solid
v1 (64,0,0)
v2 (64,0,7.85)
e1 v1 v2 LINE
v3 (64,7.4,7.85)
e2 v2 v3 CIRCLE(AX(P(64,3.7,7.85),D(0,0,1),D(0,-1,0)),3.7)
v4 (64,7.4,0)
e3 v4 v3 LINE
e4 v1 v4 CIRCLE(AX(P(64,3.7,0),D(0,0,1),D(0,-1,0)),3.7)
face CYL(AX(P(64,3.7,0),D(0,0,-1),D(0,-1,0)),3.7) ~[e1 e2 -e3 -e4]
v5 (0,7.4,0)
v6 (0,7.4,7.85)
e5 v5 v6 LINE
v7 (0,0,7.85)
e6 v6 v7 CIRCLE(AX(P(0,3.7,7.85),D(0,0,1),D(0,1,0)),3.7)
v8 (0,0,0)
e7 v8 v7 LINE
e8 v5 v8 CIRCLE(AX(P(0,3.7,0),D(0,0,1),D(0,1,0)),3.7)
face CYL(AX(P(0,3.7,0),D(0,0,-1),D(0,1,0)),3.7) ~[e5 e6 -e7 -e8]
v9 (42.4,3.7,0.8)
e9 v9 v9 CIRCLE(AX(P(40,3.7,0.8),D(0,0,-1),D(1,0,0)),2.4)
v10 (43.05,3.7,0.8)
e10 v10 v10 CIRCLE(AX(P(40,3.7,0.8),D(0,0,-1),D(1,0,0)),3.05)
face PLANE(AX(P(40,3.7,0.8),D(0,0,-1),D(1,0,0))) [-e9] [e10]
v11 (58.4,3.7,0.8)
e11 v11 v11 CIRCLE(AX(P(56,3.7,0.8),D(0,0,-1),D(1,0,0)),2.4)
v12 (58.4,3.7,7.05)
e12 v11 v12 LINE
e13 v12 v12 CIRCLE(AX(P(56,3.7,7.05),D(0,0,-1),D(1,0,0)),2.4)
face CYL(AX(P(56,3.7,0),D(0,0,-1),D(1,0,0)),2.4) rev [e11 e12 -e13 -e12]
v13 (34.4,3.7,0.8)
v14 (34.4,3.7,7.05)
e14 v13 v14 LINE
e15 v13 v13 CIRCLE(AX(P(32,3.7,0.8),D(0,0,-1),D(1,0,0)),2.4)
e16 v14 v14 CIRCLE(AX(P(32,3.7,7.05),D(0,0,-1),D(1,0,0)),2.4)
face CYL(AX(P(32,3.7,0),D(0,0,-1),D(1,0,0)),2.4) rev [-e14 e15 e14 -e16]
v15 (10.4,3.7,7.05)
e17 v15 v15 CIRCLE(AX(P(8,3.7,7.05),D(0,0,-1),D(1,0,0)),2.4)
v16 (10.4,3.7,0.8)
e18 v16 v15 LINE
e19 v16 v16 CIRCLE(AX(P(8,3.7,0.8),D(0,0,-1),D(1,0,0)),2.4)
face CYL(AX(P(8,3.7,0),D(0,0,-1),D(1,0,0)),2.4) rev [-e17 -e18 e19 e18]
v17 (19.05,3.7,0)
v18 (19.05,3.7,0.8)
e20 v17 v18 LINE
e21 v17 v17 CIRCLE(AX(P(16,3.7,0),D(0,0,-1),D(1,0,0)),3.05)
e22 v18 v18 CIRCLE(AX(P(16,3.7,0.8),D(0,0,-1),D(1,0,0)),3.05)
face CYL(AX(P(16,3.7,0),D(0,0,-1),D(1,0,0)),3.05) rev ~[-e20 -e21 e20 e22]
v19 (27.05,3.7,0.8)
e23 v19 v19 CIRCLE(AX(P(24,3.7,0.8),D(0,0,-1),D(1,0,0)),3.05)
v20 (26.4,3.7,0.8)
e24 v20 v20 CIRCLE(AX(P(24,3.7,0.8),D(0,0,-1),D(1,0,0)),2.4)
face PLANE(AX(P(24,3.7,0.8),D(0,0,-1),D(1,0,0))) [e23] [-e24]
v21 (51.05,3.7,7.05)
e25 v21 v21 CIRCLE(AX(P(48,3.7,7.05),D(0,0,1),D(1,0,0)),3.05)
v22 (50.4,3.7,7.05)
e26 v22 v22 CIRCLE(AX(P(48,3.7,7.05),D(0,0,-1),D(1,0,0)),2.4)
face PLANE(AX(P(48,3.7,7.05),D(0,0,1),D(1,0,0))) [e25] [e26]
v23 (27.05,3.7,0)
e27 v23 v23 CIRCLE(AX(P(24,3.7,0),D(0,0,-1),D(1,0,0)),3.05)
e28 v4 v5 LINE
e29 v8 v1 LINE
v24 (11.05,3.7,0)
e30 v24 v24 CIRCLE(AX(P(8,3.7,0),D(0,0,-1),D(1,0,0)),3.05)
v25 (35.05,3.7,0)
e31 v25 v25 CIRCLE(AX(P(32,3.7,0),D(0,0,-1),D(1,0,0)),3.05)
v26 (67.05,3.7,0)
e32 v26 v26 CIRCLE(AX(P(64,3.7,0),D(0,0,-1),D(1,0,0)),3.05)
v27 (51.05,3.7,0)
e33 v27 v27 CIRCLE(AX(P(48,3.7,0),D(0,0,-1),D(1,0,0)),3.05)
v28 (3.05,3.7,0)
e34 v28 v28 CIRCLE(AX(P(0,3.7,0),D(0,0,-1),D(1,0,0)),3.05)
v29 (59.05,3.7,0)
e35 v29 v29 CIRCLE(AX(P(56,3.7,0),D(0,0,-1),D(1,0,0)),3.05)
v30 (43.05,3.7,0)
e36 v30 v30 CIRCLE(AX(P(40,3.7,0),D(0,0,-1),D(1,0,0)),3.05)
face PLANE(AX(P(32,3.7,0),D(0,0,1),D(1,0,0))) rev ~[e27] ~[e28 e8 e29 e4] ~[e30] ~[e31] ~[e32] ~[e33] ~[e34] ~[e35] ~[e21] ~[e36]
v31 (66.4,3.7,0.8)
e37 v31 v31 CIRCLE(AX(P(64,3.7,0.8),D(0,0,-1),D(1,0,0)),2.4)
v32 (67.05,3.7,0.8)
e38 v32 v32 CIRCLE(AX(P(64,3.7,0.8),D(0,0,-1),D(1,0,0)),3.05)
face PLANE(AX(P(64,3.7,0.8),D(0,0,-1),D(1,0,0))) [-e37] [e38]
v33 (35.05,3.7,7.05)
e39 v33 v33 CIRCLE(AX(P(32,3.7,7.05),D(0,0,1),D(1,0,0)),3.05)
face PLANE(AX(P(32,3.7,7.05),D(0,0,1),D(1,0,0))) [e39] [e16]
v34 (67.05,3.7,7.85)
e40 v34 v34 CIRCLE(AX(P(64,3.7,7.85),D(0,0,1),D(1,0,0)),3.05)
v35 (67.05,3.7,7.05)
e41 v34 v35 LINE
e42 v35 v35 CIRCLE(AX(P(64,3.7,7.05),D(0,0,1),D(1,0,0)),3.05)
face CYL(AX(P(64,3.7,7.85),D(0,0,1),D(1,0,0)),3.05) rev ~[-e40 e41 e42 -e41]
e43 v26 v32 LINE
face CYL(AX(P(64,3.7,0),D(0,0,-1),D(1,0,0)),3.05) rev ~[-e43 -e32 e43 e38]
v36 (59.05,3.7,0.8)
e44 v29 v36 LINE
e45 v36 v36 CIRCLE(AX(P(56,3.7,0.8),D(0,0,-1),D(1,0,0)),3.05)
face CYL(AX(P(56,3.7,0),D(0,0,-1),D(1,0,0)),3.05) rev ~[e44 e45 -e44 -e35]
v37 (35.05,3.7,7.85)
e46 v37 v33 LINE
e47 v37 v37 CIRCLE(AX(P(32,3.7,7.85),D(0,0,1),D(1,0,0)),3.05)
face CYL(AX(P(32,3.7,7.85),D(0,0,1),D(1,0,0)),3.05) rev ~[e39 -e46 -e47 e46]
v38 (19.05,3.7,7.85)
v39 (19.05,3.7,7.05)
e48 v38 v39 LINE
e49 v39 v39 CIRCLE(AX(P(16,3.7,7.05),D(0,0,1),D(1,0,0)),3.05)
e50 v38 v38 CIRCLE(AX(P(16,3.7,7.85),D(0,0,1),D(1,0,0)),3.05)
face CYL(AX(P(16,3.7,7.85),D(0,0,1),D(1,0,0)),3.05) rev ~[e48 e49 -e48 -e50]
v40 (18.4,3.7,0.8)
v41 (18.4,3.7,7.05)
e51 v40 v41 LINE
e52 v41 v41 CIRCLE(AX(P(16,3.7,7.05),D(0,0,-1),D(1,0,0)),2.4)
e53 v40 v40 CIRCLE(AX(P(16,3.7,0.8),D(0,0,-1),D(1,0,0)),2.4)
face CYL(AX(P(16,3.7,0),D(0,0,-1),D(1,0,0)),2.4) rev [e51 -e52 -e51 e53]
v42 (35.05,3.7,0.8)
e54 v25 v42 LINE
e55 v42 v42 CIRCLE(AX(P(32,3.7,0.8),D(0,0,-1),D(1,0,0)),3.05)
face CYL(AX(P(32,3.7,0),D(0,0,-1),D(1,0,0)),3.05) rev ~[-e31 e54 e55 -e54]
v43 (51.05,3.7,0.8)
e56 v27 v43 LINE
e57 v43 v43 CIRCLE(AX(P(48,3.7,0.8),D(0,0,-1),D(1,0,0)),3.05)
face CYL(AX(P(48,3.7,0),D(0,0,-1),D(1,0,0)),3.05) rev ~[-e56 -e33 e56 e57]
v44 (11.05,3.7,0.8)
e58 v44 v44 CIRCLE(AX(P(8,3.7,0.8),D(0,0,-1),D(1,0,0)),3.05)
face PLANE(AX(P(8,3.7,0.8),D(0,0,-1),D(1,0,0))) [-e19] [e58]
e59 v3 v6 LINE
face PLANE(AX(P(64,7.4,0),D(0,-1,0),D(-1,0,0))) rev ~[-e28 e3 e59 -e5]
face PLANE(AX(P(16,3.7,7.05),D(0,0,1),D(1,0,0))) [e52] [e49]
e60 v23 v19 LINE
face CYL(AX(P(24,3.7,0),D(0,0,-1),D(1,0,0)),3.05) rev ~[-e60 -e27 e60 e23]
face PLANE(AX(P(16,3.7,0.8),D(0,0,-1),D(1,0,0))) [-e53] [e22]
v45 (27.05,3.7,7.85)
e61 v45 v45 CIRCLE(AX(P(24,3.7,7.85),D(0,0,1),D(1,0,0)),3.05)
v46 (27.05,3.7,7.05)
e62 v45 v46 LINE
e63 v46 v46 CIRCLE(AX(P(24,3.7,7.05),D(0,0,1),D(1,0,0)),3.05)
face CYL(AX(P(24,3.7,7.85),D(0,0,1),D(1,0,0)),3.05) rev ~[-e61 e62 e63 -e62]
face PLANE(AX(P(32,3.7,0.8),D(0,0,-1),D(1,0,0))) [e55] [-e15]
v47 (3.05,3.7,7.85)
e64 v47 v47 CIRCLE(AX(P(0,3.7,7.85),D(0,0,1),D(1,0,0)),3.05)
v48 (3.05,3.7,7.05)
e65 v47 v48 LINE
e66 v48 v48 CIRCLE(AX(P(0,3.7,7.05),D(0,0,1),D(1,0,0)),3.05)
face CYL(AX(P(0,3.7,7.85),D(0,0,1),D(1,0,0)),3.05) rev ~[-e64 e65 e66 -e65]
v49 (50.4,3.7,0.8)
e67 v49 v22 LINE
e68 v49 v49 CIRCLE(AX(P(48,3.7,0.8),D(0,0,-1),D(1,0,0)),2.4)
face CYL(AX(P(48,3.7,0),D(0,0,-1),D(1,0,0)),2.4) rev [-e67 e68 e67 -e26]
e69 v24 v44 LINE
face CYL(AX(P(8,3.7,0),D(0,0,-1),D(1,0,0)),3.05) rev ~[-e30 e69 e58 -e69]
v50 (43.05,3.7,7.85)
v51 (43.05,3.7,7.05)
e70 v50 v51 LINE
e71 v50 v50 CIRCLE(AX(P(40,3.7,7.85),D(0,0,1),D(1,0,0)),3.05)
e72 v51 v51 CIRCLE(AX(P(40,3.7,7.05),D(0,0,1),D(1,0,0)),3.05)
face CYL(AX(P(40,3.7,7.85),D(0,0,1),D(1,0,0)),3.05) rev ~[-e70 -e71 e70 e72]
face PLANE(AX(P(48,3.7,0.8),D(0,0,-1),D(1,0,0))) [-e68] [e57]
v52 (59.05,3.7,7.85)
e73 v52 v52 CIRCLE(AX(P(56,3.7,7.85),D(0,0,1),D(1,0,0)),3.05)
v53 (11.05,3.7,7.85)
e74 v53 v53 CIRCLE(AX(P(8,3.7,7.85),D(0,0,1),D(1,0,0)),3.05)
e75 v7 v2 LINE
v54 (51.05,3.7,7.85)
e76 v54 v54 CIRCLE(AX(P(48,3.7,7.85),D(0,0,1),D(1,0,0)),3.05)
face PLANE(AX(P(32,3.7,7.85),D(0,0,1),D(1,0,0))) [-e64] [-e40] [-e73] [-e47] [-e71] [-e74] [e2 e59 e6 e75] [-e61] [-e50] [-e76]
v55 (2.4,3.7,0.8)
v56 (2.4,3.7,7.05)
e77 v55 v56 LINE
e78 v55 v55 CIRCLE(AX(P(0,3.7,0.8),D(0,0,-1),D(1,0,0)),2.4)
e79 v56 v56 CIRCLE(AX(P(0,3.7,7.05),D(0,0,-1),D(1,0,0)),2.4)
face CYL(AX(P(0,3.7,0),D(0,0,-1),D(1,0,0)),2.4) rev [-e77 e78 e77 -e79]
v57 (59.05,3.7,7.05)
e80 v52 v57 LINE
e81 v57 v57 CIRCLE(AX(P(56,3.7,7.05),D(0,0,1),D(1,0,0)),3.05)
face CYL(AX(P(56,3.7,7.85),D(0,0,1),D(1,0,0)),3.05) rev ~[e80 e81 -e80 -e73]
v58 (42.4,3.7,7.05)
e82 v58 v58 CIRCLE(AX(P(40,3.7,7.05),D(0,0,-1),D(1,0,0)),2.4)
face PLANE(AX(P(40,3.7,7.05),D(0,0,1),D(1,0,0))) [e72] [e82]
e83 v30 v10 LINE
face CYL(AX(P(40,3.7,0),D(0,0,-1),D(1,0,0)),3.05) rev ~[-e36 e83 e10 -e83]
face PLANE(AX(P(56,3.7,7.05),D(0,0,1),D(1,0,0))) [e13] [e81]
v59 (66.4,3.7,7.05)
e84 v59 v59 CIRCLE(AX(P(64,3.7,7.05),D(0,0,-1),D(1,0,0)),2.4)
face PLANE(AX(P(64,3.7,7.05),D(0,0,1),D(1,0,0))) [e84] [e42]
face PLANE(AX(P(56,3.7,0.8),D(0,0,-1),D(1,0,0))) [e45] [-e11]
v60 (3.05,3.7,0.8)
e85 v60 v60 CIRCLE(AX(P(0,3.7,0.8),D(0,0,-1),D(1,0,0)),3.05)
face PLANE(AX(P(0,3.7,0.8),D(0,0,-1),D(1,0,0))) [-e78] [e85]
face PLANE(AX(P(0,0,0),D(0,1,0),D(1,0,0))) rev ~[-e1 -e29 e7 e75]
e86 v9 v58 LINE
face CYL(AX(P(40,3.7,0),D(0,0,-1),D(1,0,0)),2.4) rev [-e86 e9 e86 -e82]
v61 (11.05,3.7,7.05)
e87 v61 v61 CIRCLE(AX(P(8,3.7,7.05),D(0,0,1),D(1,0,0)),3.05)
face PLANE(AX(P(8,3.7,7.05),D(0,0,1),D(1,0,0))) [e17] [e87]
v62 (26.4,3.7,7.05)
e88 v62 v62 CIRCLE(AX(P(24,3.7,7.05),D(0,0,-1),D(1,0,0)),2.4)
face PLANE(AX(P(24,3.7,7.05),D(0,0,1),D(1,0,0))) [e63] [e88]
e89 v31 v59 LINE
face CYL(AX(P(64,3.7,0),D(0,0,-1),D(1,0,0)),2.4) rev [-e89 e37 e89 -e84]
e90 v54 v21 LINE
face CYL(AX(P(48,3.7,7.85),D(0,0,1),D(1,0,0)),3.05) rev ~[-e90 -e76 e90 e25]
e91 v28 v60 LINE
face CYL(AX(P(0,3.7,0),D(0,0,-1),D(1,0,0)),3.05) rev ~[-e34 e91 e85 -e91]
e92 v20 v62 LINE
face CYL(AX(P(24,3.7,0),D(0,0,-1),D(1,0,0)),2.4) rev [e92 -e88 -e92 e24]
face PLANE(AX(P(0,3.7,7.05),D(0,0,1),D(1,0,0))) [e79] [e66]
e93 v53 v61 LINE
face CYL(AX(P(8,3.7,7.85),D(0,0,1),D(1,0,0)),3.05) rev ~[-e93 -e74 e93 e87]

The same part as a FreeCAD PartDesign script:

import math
import FreeCAD as App
import Part
import Sketcher

doc = App.newDocument("Part")
body = doc.addObject("PartDesign::Body", "Body")

sketch1 = doc.addObject("Sketcher::SketchObject", "Sketch")
body.addObject(sketch1)
sketch1.AttachmentSupport = (doc.XY_Plane, [""])
sketch1.MapMode = "FlatFace"
sketch1.addGeometry([
    Part.ArcOfCircle(Part.Circle(App.Vector(0, 3.7, 0), App.Vector(0, 0, 1), 3.7), math.radians(90), math.radians(270)),
    Part.LineSegment(App.Vector(0, 0, 0), App.Vector(64, 0, 0)),
    Part.ArcOfCircle(Part.Circle(App.Vector(64, 3.7, 0), App.Vector(0, 0, 1), 3.7), math.radians(-90), math.radians(90)),
    Part.LineSegment(App.Vector(64, 7.4, 0), App.Vector(0, 7.4, 0)),
    Part.Circle(App.Vector(0, 3.7, 0), App.Vector(0, 0, 1), 2.4),
    Part.Circle(App.Vector(8, 3.7, 0), App.Vector(0, 0, 1), 2.4),
    Part.Circle(App.Vector(16, 3.7, 0), App.Vector(0, 0, 1), 2.4),
    Part.Circle(App.Vector(24, 3.7, 0), App.Vector(0, 0, 1), 2.4),
    Part.Circle(App.Vector(32, 3.7, 0), App.Vector(0, 0, 1), 2.4),
    Part.Circle(App.Vector(40, 3.7, 0), App.Vector(0, 0, 1), 2.4),
    Part.Circle(App.Vector(48, 3.7, 0), App.Vector(0, 0, 1), 2.4),
    Part.Circle(App.Vector(56, 3.7, 0), App.Vector(0, 0, 1), 2.4),
    Part.Circle(App.Vector(64, 3.7, 0), App.Vector(0, 0, 1), 2.4),
], False)
sketch1.addConstraint([
    Sketcher.Constraint("Tangent", 0, 2, 1, 1),
    Sketcher.Constraint("Tangent", 1, 2, 2, 1),
    Sketcher.Constraint("Tangent", 2, 2, 3, 1),
    Sketcher.Constraint("Tangent", 3, 2, 0, 1),
    Sketcher.Constraint("Horizontal", 1),
    Sketcher.Constraint("Horizontal", 3),
    Sketcher.Constraint("Coincident", 0, 2, -1, 1),
    Sketcher.Constraint("Coincident", 4, 3, 0, 3),
    Sketcher.Constraint("Coincident", 12, 3, 2, 3),
    Sketcher.Constraint("Equal", 4, 5),
    Sketcher.Constraint("Equal", 5, 6),
    Sketcher.Constraint("Equal", 6, 7),
    Sketcher.Constraint("Equal", 7, 8),
    Sketcher.Constraint("Equal", 8, 9),
    Sketcher.Constraint("Equal", 9, 10),
    Sketcher.Constraint("Equal", 10, 11),
    Sketcher.Constraint("Equal", 11, 12),
    Sketcher.Constraint("Horizontal", 4, 3, 5, 3),
    Sketcher.Constraint("Horizontal", 5, 3, 6, 3),
    Sketcher.Constraint("Horizontal", 6, 3, 7, 3),
    Sketcher.Constraint("Horizontal", 7, 3, 8, 3),
    Sketcher.Constraint("Horizontal", 8, 3, 9, 3),
    Sketcher.Constraint("Horizontal", 9, 3, 10, 3),
    Sketcher.Constraint("Horizontal", 10, 3, 11, 3),
    Sketcher.Constraint("Diameter", 4, 4.8),
    Sketcher.Constraint("Radius", 0, 3.7),
    Sketcher.Constraint("DistanceX", 1, 1, 1, 2, 64.0),
    Sketcher.Constraint("DistanceX", -1, 1, 5, 3, 8.0),
    Sketcher.Constraint("DistanceX", -1, 1, 6, 3, 16.0),
    Sketcher.Constraint("DistanceX", -1, 1, 7, 3, 24.0),
    Sketcher.Constraint("DistanceX", -1, 1, 8, 3, 32.0),
    Sketcher.Constraint("DistanceX", -1, 1, 9, 3, 40.0),
    Sketcher.Constraint("DistanceX", -1, 1, 10, 3, 48.0),
    Sketcher.Constraint("DistanceX", -1, 1, 11, 3, 56.0),
])
pad1 = doc.addObject("PartDesign::Pad", "Pad")
body.addObject(pad1)
pad1.Profile = sketch1
pad1.Length = 7.85

sketch2 = doc.addObject("Sketcher::SketchObject", "Sketch001")
body.addObject(sketch2)
sketch2.AttachmentSupport = (doc.XY_Plane, [""])
sketch2.MapMode = "FlatFace"
sketch2.AttachmentOffset = App.Placement(App.Vector(0, 0, 7.85), App.Rotation())
sketch2.addGeometry([
    Part.Circle(App.Vector(0, 3.7, 0), App.Vector(0, 0, 1), 3.05),
    Part.Circle(App.Vector(8, 3.7, 0), App.Vector(0, 0, 1), 3.05),
    Part.Circle(App.Vector(16, 3.7, 0), App.Vector(0, 0, 1), 3.05),
    Part.Circle(App.Vector(24, 3.7, 0), App.Vector(0, 0, 1), 3.05),
    Part.Circle(App.Vector(32, 3.7, 0), App.Vector(0, 0, 1), 3.05),
    Part.Circle(App.Vector(40, 3.7, 0), App.Vector(0, 0, 1), 3.05),
    Part.Circle(App.Vector(48, 3.7, 0), App.Vector(0, 0, 1), 3.05),
    Part.Circle(App.Vector(56, 3.7, 0), App.Vector(0, 0, 1), 3.05),
    Part.Circle(App.Vector(64, 3.7, 0), App.Vector(0, 0, 1), 3.05),
], False)
sketch2.addConstraint([
    Sketcher.Constraint("Equal", 0, 1),
    Sketcher.Constraint("Equal", 1, 2),
    Sketcher.Constraint("Equal", 2, 3),
    Sketcher.Constraint("Equal", 3, 4),
    Sketcher.Constraint("Equal", 4, 5),
    Sketcher.Constraint("Equal", 5, 6),
    Sketcher.Constraint("Equal", 6, 7),
    Sketcher.Constraint("Equal", 7, 8),
    Sketcher.Constraint("PointOnObject", 0, 3, -2),
    Sketcher.Constraint("Horizontal", 0, 3, 1, 3),
    Sketcher.Constraint("Horizontal", 1, 3, 2, 3),
    Sketcher.Constraint("Horizontal", 2, 3, 3, 3),
    Sketcher.Constraint("Horizontal", 3, 3, 4, 3),
    Sketcher.Constraint("Horizontal", 4, 3, 5, 3),
    Sketcher.Constraint("Horizontal", 5, 3, 6, 3),
    Sketcher.Constraint("Horizontal", 6, 3, 7, 3),
    Sketcher.Constraint("Horizontal", 7, 3, 8, 3),
    Sketcher.Constraint("Diameter", 0, 6.1),
    Sketcher.Constraint("DistanceX", -1, 1, 1, 3, 8.0),
    Sketcher.Constraint("DistanceX", -1, 1, 2, 3, 16.0),
    Sketcher.Constraint("DistanceX", -1, 1, 3, 3, 24.0),
    Sketcher.Constraint("DistanceX", -1, 1, 4, 3, 32.0),
    Sketcher.Constraint("DistanceX", -1, 1, 5, 3, 40.0),
    Sketcher.Constraint("DistanceX", -1, 1, 6, 3, 48.0),
    Sketcher.Constraint("DistanceX", -1, 1, 7, 3, 56.0),
    Sketcher.Constraint("DistanceX", -1, 1, 8, 3, 64.0),
    Sketcher.Constraint("DistanceY", -1, 1, 0, 3, 3.7),
])
pocket1 = doc.addObject("PartDesign::Pocket", "Pocket")
body.addObject(pocket1)
pocket1.Profile = sketch2
pocket1.Length = 0.8

sketch3 = doc.addObject("Sketcher::SketchObject", "Sketch002")
body.addObject(sketch3)
sketch3.AttachmentSupport = (doc.XY_Plane, [""])
sketch3.MapMode = "FlatFace"
sketch3.addGeometry([
    Part.Circle(App.Vector(0, 3.7, 0), App.Vector(0, 0, 1), 3.05),
    Part.Circle(App.Vector(8, 3.7, 0), App.Vector(0, 0, 1), 3.05),
    Part.Circle(App.Vector(16, 3.7, 0), App.Vector(0, 0, 1), 3.05),
    Part.Circle(App.Vector(24, 3.7, 0), App.Vector(0, 0, 1), 3.05),
    Part.Circle(App.Vector(32, 3.7, 0), App.Vector(0, 0, 1), 3.05),
    Part.Circle(App.Vector(64, 3.7, 0), App.Vector(0, 0, 1), 3.05),
    Part.Circle(App.Vector(56, 3.7, 0), App.Vector(0, 0, 1), 3.05),
    Part.Circle(App.Vector(40, 3.7, 0), App.Vector(0, 0, 1), 3.05),
    Part.Circle(App.Vector(48, 3.7, 0), App.Vector(0, 0, 1), 3.05),
], False)
sketch3.addConstraint([
    Sketcher.Constraint("Equal", 0, 1),
    Sketcher.Constraint("Equal", 1, 2),
    Sketcher.Constraint("Equal", 2, 3),
    Sketcher.Constraint("Equal", 3, 4),
    Sketcher.Constraint("Equal", 4, 5),
    Sketcher.Constraint("Equal", 5, 6),
    Sketcher.Constraint("Equal", 6, 7),
    Sketcher.Constraint("Equal", 7, 8),
    Sketcher.Constraint("PointOnObject", 0, 3, -2),
    Sketcher.Constraint("Horizontal", 0, 3, 1, 3),
    Sketcher.Constraint("Horizontal", 1, 3, 2, 3),
    Sketcher.Constraint("Horizontal", 2, 3, 3, 3),
    Sketcher.Constraint("Horizontal", 3, 3, 4, 3),
    Sketcher.Constraint("Horizontal", 4, 3, 5, 3),
    Sketcher.Constraint("Horizontal", 5, 3, 6, 3),
    Sketcher.Constraint("Horizontal", 6, 3, 7, 3),
    Sketcher.Constraint("Horizontal", 7, 3, 8, 3),
    Sketcher.Constraint("Diameter", 0, 6.1),
    Sketcher.Constraint("DistanceX", -1, 1, 1, 3, 8.0),
    Sketcher.Constraint("DistanceX", -1, 1, 2, 3, 16.0),
    Sketcher.Constraint("DistanceX", -1, 1, 3, 3, 24.0),
    Sketcher.Constraint("DistanceX", -1, 1, 4, 3, 32.0),
    Sketcher.Constraint("DistanceX", -1, 1, 5, 3, 64.0),
    Sketcher.Constraint("DistanceX", -1, 1, 6, 3, 56.0),
    Sketcher.Constraint("DistanceX", -1, 1, 7, 3, 40.0),
    Sketcher.Constraint("DistanceX", -1, 1, 8, 3, 48.0),
    Sketcher.Constraint("DistanceY", -1, 1, 0, 3, 3.7),
])
pocket2 = doc.addObject("PartDesign::Pocket", "Pocket001")
body.addObject(pocket2)
pocket2.Profile = sketch3
pocket2.Length = 0.8
pocket2.Reversed = True

doc.recompute()
